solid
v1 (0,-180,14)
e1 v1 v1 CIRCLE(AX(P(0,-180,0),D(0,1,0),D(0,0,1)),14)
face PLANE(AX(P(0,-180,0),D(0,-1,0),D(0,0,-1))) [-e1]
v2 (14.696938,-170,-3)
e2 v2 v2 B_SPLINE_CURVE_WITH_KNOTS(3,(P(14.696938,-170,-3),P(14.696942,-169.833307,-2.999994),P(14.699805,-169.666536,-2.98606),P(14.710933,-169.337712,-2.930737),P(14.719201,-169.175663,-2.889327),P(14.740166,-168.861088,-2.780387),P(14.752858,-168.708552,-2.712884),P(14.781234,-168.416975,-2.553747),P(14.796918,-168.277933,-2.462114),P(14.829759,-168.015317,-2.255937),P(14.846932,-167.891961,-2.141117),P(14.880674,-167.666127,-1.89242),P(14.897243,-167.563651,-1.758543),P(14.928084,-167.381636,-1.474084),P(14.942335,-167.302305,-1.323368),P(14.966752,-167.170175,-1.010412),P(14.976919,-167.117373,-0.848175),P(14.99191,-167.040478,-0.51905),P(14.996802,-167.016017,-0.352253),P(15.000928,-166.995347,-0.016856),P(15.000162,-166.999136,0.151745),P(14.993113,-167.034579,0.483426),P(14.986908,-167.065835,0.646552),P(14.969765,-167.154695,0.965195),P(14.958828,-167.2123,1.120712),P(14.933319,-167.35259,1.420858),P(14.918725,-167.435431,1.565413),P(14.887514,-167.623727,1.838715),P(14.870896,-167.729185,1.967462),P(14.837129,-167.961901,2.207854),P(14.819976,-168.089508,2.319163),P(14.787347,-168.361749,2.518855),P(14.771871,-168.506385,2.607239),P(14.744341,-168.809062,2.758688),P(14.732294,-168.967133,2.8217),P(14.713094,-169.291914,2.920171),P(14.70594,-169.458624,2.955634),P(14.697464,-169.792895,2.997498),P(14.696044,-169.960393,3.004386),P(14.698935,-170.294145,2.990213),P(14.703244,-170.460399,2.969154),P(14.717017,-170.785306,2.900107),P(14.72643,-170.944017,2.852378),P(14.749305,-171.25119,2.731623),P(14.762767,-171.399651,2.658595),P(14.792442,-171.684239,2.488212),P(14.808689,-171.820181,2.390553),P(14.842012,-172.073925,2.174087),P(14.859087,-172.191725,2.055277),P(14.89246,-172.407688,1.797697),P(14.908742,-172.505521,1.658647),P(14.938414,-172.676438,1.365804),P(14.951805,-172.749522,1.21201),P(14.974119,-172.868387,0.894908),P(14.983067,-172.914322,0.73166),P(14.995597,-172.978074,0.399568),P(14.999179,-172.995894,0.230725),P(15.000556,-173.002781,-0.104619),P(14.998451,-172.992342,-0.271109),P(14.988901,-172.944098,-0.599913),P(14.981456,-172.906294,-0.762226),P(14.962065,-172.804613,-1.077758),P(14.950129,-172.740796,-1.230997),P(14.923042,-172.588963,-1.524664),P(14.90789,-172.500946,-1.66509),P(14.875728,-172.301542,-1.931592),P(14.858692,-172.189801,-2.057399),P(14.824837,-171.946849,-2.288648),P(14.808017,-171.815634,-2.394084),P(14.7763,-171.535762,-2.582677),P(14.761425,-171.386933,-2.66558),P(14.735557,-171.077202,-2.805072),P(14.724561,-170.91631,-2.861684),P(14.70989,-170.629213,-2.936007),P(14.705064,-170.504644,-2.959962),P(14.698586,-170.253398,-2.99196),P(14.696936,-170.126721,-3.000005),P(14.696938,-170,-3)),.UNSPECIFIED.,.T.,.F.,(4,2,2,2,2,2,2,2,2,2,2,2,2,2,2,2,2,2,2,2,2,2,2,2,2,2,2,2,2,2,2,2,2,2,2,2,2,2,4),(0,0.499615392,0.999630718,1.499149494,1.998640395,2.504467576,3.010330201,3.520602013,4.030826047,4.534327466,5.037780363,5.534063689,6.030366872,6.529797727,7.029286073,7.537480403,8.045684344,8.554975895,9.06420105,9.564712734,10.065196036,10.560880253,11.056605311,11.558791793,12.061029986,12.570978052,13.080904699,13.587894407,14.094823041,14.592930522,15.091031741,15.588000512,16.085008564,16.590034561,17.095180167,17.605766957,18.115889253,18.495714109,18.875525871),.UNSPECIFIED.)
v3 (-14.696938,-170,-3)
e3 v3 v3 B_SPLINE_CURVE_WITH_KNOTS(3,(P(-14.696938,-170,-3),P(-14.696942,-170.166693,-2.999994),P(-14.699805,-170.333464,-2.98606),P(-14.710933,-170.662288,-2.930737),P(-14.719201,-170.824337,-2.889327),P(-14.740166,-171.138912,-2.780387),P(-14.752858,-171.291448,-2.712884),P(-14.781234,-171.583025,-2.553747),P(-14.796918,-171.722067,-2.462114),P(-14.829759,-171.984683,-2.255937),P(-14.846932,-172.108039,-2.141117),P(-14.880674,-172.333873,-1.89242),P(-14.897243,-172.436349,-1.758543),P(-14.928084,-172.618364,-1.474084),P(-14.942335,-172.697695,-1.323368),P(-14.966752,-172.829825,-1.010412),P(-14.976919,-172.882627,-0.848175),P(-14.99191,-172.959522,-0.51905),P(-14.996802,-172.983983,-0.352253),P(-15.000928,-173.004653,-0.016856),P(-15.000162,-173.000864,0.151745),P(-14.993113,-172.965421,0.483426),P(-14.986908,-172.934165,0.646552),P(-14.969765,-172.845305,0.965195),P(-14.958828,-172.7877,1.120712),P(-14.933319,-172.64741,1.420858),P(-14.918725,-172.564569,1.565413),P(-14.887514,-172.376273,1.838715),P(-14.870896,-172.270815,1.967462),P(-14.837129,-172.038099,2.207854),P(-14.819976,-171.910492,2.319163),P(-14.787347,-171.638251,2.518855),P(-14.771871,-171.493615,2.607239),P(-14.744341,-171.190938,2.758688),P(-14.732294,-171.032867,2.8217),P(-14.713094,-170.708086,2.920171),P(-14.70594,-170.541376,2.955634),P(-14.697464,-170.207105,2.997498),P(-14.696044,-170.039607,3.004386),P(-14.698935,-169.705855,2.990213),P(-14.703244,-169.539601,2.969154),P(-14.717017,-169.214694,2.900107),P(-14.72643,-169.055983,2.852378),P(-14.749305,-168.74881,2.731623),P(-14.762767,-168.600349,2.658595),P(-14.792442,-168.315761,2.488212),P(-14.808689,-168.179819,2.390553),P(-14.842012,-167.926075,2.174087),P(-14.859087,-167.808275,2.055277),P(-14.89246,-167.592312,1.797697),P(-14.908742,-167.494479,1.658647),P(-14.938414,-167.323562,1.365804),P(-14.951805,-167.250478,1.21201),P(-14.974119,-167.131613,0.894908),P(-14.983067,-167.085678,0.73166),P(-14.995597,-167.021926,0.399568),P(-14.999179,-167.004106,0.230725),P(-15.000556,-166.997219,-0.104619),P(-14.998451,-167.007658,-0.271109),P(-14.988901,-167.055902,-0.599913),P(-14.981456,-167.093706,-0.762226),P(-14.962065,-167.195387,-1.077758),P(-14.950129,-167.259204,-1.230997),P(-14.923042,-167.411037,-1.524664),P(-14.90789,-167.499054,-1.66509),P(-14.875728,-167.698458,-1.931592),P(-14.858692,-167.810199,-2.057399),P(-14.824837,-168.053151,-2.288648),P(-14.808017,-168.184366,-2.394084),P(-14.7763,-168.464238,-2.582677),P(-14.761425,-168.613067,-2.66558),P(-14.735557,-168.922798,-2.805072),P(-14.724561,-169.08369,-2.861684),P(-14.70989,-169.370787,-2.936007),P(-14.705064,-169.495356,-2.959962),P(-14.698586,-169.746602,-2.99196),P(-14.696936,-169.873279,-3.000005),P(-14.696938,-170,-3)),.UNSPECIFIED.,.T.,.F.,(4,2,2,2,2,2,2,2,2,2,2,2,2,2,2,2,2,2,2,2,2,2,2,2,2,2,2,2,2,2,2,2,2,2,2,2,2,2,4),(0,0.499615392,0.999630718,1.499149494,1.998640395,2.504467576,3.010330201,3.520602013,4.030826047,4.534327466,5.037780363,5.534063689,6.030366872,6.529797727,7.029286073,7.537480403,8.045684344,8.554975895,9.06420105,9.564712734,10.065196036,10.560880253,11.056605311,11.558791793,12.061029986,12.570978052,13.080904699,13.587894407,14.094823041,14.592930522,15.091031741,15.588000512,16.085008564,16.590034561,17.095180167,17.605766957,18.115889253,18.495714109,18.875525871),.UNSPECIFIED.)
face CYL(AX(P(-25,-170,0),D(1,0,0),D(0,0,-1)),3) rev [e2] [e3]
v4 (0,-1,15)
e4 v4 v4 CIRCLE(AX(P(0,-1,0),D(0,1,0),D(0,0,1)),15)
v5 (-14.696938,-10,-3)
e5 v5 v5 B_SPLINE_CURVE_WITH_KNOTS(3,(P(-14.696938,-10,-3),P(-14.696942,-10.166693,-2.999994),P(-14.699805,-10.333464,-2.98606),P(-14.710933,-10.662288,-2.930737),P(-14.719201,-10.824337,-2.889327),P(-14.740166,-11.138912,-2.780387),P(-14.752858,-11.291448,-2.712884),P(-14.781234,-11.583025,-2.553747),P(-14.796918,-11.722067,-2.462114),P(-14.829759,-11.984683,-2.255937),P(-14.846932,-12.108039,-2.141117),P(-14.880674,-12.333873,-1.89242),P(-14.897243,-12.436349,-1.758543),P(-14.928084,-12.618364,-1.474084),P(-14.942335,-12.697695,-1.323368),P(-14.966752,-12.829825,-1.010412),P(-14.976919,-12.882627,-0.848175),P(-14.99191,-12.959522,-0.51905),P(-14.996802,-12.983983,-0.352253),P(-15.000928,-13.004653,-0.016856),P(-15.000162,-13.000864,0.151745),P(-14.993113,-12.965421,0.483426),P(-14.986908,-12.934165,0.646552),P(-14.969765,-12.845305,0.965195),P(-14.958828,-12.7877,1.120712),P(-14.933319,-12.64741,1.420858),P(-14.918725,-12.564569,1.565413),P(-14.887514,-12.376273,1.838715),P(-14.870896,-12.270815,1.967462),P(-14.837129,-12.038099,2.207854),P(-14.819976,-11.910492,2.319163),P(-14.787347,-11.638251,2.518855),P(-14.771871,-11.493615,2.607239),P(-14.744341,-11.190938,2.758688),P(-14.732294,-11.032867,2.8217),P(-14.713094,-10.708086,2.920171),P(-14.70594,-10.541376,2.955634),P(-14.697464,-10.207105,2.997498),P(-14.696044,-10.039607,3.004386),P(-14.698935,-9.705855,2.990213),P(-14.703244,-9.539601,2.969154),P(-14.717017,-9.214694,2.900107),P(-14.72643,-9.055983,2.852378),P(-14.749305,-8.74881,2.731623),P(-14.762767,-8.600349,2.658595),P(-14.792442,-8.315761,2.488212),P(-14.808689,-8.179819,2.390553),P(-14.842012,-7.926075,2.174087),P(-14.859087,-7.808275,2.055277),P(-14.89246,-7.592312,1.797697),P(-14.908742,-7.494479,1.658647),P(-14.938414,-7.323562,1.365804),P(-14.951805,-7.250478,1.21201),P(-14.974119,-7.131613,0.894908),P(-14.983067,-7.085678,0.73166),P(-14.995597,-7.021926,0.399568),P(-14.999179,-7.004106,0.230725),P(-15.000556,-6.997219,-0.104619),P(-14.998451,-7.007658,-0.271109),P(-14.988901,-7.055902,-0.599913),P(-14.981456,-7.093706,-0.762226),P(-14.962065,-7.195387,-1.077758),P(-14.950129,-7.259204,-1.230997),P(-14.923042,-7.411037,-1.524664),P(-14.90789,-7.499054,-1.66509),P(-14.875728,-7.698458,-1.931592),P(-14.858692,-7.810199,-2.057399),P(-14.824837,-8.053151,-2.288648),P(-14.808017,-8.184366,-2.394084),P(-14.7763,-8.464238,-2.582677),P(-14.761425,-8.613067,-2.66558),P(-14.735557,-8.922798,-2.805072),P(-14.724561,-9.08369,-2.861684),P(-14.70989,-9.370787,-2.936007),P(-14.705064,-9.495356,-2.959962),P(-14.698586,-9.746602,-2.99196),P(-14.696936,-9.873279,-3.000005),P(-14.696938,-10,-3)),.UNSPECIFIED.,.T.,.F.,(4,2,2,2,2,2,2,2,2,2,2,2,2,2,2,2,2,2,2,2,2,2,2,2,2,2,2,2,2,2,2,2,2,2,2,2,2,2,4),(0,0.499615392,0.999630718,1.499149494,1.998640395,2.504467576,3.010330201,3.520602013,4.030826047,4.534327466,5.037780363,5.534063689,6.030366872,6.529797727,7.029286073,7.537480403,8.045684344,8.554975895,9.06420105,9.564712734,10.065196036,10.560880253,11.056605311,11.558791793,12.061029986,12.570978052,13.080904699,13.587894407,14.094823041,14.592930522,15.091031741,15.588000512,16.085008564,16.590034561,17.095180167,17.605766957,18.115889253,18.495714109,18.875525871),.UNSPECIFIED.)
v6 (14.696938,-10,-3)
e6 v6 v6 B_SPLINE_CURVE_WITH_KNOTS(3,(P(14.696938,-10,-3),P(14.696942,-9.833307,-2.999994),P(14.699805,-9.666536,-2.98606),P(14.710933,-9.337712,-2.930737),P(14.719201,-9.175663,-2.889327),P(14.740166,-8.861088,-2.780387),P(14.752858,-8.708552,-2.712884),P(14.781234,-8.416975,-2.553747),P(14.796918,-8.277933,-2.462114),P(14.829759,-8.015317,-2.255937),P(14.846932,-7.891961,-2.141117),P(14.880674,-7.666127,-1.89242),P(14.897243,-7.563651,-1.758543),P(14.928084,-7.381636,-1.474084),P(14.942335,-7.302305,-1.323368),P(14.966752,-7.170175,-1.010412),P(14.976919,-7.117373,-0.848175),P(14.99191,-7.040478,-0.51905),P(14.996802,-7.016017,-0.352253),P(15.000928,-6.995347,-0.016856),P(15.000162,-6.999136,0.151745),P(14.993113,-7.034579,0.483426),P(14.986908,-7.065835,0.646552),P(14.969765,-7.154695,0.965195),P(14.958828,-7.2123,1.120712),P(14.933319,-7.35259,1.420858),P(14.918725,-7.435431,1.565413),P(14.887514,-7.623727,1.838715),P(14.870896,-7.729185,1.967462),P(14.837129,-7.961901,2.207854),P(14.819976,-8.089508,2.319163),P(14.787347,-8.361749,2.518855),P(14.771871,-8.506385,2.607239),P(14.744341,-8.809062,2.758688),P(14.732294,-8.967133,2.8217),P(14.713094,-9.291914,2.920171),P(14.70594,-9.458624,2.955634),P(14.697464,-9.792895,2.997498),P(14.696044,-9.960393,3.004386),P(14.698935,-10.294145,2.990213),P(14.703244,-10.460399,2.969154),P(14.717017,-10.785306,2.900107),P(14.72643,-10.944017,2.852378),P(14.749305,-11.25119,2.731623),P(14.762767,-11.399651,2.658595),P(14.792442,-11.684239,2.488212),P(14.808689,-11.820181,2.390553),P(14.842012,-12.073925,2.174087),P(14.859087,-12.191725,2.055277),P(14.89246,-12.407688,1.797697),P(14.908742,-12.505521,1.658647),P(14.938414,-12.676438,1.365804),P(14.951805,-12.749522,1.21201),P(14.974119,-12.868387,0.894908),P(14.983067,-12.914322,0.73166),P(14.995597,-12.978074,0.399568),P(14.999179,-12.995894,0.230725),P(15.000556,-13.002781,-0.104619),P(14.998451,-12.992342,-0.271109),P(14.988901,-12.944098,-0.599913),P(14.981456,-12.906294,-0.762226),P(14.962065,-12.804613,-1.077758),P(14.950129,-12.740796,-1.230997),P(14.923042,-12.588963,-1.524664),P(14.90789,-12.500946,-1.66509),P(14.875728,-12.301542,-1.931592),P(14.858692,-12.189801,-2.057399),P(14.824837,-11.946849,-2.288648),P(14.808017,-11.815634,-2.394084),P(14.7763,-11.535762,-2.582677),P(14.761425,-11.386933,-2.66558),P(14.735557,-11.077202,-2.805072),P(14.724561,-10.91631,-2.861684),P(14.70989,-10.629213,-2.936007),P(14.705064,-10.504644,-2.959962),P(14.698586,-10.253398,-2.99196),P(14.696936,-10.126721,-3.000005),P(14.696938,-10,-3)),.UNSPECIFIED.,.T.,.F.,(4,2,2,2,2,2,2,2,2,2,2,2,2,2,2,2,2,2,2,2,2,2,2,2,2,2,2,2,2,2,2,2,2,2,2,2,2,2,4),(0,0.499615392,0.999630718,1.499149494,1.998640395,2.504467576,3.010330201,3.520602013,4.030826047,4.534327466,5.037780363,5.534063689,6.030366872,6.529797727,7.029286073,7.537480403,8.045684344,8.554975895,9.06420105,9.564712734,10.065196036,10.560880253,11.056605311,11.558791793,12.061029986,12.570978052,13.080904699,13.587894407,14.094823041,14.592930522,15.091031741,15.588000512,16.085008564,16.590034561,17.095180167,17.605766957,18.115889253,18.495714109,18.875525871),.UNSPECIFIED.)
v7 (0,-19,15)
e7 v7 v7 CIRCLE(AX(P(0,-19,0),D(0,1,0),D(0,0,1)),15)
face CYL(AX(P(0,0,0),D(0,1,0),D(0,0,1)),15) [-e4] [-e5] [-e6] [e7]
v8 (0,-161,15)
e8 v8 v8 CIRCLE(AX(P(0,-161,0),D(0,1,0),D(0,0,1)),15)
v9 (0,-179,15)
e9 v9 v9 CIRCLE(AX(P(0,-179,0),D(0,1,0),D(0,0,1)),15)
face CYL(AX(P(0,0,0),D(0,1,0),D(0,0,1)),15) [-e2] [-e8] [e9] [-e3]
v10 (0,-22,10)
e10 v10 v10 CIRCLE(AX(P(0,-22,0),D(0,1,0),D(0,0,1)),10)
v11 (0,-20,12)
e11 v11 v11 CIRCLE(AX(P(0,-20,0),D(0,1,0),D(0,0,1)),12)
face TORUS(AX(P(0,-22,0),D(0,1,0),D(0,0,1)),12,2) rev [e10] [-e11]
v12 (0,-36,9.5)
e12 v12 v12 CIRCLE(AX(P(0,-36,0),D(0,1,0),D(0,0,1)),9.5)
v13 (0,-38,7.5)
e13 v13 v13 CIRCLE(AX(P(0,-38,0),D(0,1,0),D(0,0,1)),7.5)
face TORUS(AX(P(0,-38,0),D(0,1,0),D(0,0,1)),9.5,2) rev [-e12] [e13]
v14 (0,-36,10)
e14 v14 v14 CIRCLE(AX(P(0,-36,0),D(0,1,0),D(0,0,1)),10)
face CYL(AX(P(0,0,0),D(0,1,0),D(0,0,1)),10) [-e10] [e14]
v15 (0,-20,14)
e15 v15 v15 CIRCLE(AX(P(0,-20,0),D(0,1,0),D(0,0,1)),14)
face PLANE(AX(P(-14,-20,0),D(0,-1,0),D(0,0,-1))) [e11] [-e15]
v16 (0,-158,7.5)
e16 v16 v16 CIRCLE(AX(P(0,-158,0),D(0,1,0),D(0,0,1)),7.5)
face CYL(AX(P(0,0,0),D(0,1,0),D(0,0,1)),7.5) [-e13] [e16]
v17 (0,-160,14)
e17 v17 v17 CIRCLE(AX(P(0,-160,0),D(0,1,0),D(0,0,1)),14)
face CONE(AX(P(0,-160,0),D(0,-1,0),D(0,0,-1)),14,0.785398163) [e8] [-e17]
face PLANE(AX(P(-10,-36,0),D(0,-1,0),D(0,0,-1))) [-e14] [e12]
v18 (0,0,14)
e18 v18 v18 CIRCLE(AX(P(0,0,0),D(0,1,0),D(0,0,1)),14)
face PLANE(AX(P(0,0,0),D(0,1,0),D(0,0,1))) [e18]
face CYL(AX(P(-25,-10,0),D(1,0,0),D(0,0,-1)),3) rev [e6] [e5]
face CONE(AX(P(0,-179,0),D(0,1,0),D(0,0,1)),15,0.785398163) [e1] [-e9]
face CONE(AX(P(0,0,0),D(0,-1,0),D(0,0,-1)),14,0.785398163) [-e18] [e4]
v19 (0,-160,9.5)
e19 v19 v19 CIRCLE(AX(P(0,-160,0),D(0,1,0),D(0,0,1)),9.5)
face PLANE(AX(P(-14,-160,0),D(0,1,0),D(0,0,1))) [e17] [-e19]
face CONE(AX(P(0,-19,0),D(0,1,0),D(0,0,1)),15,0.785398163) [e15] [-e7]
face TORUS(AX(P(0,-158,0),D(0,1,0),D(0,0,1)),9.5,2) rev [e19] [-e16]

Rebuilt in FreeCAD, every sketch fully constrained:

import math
import FreeCAD as App
import Part
import Sketcher
from FreeCAD import Vector

doc = App.newDocument("Part")
params = doc.addObject("Spreadsheet::Sheet", "Params")
for row, (alias, value) in enumerate([
    ("sketch1_radius", "2 mm"),
    ("sketch1_width", "14 mm"),
    ("sketch1_width2", "2 mm"),
    ("sketch1_height", "18 mm"),
    ("sketch1_height2", "120 mm"),
    ("revolution_angle", "360 deg"),
    ("sketch2_diameter", "6 mm"),
    ("pocket1_length", "50 mm"),
], start=1):
    params.set(f"A{row}", alias)
    params.set(f"B{row}", "=" + value)
    params.setAlias(f"B{row}", alias)

body = doc.addObject("PartDesign::Body", "Body")

# Sketch on XY plane
sketch1 = doc.addObject("Sketcher::SketchObject", "Sketch")
body.addObject(sketch1)
sketch1.AttachmentSupport = (doc.XY_Plane, [""])
sketch1.MapMode = "FlatFace"
sketch1.addGeometry(Part.LineSegment(Vector(0, 0, 0), Vector(-14, 0, 0)), False)
sketch1.addGeometry(Part.LineSegment(Vector(-14, 0, 0), Vector(-15, -1, 0)), False)
sketch1.addGeometry(Part.LineSegment(Vector(-15, -1, 0), Vector(-15, -19, 0)), False)
sketch1.addGeometry(Part.LineSegment(Vector(-15, -19, 0), Vector(-14, -20, 0)), False)
sketch1.addGeometry(Part.LineSegment(Vector(-14, -20, 0), Vector(-12, -20, 0)), False)
sketch1.addGeometry(Part.ArcOfCircle(Part.Circle(Vector(-12, -22, 0), Vector(0, 0, 1), 2), math.radians(0), math.radians(90)), False)
sketch1.addGeometry(Part.LineSegment(Vector(-10, -22, 0), Vector(-10, -36, 0)), False)
sketch1.addGeometry(Part.LineSegment(Vector(-10, -36, 0), Vector(-9.5, -36, 0)), False)
sketch1.addGeometry(Part.ArcOfCircle(Part.Circle(Vector(-9.5, -38, 0), Vector(0, 0, 1), 2), math.radians(0), math.radians(90)), False)
sketch1.addGeometry(Part.LineSegment(Vector(-7.5, -38, 0), Vector(-7.5, -158, 0)), False)
sketch1.addGeometry(Part.ArcOfCircle(Part.Circle(Vector(-9.5, -158, 0), Vector(0, 0, 1), 2), math.radians(-90), math.radians(0)), False)
sketch1.addGeometry(Part.LineSegment(Vector(-9.5, -160, 0), Vector(-14, -160, 0)), False)
sketch1.addGeometry(Part.LineSegment(Vector(-14, -160, 0), Vector(-15, -161, 0)), False)
sketch1.addGeometry(Part.LineSegment(Vector(-15, -161, 0), Vector(-15, -179, 0)), False)
sketch1.addGeometry(Part.LineSegment(Vector(-15, -179, 0), Vector(-14, -180, 0)), False)
sketch1.addGeometry(Part.LineSegment(Vector(-14, -180, 0), Vector(0, -180, 0)), False)
sketch1.addGeometry(Part.LineSegment(Vector(0, -180, 0), Vector(0, 0, 0)), False)
sketch1.addConstraint(Sketcher.Constraint("Coincident", 0, 2, 1, 1))
sketch1.addConstraint(Sketcher.Constraint("Coincident", 1, 2, 2, 1))
sketch1.addConstraint(Sketcher.Constraint("Coincident", 2, 2, 3, 1))
sketch1.addConstraint(Sketcher.Constraint("Coincident", 3, 2, 4, 1))
sketch1.addConstraint(Sketcher.Constraint("Tangent", 4, 2, 5, 2))
sketch1.addConstraint(Sketcher.Constraint("Tangent", 5, 1, 6, 1))
sketch1.addConstraint(Sketcher.Constraint("Coincident", 6, 2, 7, 1))
sketch1.addConstraint(Sketcher.Constraint("Tangent", 7, 2, 8, 2))
sketch1.addConstraint(Sketcher.Constraint("Tangent", 8, 1, 9, 1))
sketch1.addConstraint(Sketcher.Constraint("Tangent", 9, 2, 10, 2))
sketch1.addConstraint(Sketcher.Constraint("Tangent", 10, 1, 11, 1))
sketch1.addConstraint(Sketcher.Constraint("Coincident", 11, 2, 12, 1))
sketch1.addConstraint(Sketcher.Constraint("Coincident", 12, 2, 13, 1))
sketch1.addConstraint(Sketcher.Constraint("Coincident", 13, 2, 14, 1))
sketch1.addConstraint(Sketcher.Constraint("Coincident", 14, 2, 15, 1))
sketch1.addConstraint(Sketcher.Constraint("Coincident", 15, 2, 16, 1))
sketch1.addConstraint(Sketcher.Constraint("Coincident", 16, 2, 0, 1))
sketch1.addConstraint(Sketcher.Constraint("Horizontal", 0))
sketch1.addConstraint(Sketcher.Constraint("Vertical", 2))
sketch1.addConstraint(Sketcher.Constraint("Horizontal", 4))
sketch1.addConstraint(Sketcher.Constraint("Vertical", 6))
sketch1.addConstraint(Sketcher.Constraint("Horizontal", 7))
sketch1.addConstraint(Sketcher.Constraint("Vertical", 9))
sketch1.addConstraint(Sketcher.Constraint("Horizontal", 11))
sketch1.addConstraint(Sketcher.Constraint("Vertical", 13))
sketch1.addConstraint(Sketcher.Constraint("Horizontal", 15))
sketch1.addConstraint(Sketcher.Constraint("Vertical", 16))
sketch1.addConstraint(Sketcher.Constraint("Coincident", 16, 2, -1, 1))
sketch1.addConstraint(Sketcher.Constraint("Equal", 5, 8))
sketch1.addConstraint(Sketcher.Constraint("Equal", 8, 10))
sketch1.addConstraint(Sketcher.Constraint("Perpendicular", 1, 3))
sketch1.addConstraint(Sketcher.Constraint("Perpendicular", 3, 12))
sketch1.addConstraint(Sketcher.Constraint("Perpendicular", 12, 14))
sketch1.addConstraint(Sketcher.Constraint("Vertical", 0, 2, 3, 2))
sketch1.addConstraint(Sketcher.Constraint("Vertical", 3, 2, 11, 2))
sketch1.addConstraint(Sketcher.Constraint("Vertical", 2, 2, 12, 2))
sketch1.addConstraint(Sketcher.Constraint("Vertical", 11, 2, 14, 2))
sketch1.addConstraint(Sketcher.Constraint("Equal", 15, 6))
sketch1.addConstraint(Sketcher.Constraint("Equal", 2, 13))
sketch1.addConstraint(Sketcher.Constraint("Equal", 1, 3))
sketch1.addConstraint(Sketcher.Constraint("Radius", 5, 2.0))
sketch1.addConstraint(Sketcher.Constraint("DistanceX", 0, 2, 0, 1, 14.0))
sketch1.addConstraint(Sketcher.Constraint("DistanceX", 4, 1, 4, 2, 2.0))
sketch1.addConstraint(Sketcher.Constraint("DistanceY", 2, 2, 2, 1, 18.0))
sketch1.addConstraint(Sketcher.Constraint("DistanceY", 9, 2, 9, 1, 120.0))
sketch1.addConstraint(Sketcher.Constraint("DistanceY", 16, 1, 16, 2, 180.0))
sketch1.addConstraint(Sketcher.Constraint("DistanceX", 7, 1, 7, 2, 0.5))
sketch1.setExpression("Constraints[40]", "Params.sketch1_radius")
sketch1.setExpression("Constraints[41]", "Params.sketch1_width")
sketch1.setExpression("Constraints[42]", "Params.sketch1_width2")
sketch1.setExpression("Constraints[43]", "Params.sketch1_height")
sketch1.setExpression("Constraints[44]", "Params.sketch1_height2")
revolution = doc.addObject("PartDesign::Revolution", "Revolution")
body.addObject(revolution)
revolution.Profile = sketch1
revolution.ReferenceAxis = (sketch1, ["V_Axis"])
revolution.setExpression("Angle", "Params.revolution_angle")

# Sketch on YZ plane
sketch2 = doc.addObject("Sketcher::SketchObject", "Sketch001")
body.addObject(sketch2)
sketch2.AttachmentSupport = (doc.YZ_Plane, [""])
sketch2.MapMode = "FlatFace"
sketch2.addGeometry(Part.Circle(Vector(-10, 0, 0), Vector(0, 0, 1), 3), False)
sketch2.addGeometry(Part.Circle(Vector(-170, 0, 0), Vector(0, 0, 1), 3), False)
sketch2.addConstraint(Sketcher.Constraint("Equal", 0, 1))
sketch2.addConstraint(Sketcher.Constraint("PointOnObject", 0, 3, -1))
sketch2.addConstraint(Sketcher.Constraint("PointOnObject", 1, 3, -1))
sketch2.addConstraint(Sketcher.Constraint("Diameter", 0, 6.0))
sketch2.addConstraint(Sketcher.Constraint("DistanceX", 0, 3, -1, 1, 10.0))
sketch2.addConstraint(Sketcher.Constraint("DistanceX", 1, 3, -1, 1, 170.0))
sketch2.setExpression("Constraints[3]", "Params.sketch2_diameter")
pocket1 = doc.addObject("PartDesign::Pocket", "Pocket")
body.addObject(pocket1)
pocket1.Profile = sketch2
pocket1.setExpression("Length", "Params.pocket1_length")
pocket1.Midplane = True

doc.recompute()
